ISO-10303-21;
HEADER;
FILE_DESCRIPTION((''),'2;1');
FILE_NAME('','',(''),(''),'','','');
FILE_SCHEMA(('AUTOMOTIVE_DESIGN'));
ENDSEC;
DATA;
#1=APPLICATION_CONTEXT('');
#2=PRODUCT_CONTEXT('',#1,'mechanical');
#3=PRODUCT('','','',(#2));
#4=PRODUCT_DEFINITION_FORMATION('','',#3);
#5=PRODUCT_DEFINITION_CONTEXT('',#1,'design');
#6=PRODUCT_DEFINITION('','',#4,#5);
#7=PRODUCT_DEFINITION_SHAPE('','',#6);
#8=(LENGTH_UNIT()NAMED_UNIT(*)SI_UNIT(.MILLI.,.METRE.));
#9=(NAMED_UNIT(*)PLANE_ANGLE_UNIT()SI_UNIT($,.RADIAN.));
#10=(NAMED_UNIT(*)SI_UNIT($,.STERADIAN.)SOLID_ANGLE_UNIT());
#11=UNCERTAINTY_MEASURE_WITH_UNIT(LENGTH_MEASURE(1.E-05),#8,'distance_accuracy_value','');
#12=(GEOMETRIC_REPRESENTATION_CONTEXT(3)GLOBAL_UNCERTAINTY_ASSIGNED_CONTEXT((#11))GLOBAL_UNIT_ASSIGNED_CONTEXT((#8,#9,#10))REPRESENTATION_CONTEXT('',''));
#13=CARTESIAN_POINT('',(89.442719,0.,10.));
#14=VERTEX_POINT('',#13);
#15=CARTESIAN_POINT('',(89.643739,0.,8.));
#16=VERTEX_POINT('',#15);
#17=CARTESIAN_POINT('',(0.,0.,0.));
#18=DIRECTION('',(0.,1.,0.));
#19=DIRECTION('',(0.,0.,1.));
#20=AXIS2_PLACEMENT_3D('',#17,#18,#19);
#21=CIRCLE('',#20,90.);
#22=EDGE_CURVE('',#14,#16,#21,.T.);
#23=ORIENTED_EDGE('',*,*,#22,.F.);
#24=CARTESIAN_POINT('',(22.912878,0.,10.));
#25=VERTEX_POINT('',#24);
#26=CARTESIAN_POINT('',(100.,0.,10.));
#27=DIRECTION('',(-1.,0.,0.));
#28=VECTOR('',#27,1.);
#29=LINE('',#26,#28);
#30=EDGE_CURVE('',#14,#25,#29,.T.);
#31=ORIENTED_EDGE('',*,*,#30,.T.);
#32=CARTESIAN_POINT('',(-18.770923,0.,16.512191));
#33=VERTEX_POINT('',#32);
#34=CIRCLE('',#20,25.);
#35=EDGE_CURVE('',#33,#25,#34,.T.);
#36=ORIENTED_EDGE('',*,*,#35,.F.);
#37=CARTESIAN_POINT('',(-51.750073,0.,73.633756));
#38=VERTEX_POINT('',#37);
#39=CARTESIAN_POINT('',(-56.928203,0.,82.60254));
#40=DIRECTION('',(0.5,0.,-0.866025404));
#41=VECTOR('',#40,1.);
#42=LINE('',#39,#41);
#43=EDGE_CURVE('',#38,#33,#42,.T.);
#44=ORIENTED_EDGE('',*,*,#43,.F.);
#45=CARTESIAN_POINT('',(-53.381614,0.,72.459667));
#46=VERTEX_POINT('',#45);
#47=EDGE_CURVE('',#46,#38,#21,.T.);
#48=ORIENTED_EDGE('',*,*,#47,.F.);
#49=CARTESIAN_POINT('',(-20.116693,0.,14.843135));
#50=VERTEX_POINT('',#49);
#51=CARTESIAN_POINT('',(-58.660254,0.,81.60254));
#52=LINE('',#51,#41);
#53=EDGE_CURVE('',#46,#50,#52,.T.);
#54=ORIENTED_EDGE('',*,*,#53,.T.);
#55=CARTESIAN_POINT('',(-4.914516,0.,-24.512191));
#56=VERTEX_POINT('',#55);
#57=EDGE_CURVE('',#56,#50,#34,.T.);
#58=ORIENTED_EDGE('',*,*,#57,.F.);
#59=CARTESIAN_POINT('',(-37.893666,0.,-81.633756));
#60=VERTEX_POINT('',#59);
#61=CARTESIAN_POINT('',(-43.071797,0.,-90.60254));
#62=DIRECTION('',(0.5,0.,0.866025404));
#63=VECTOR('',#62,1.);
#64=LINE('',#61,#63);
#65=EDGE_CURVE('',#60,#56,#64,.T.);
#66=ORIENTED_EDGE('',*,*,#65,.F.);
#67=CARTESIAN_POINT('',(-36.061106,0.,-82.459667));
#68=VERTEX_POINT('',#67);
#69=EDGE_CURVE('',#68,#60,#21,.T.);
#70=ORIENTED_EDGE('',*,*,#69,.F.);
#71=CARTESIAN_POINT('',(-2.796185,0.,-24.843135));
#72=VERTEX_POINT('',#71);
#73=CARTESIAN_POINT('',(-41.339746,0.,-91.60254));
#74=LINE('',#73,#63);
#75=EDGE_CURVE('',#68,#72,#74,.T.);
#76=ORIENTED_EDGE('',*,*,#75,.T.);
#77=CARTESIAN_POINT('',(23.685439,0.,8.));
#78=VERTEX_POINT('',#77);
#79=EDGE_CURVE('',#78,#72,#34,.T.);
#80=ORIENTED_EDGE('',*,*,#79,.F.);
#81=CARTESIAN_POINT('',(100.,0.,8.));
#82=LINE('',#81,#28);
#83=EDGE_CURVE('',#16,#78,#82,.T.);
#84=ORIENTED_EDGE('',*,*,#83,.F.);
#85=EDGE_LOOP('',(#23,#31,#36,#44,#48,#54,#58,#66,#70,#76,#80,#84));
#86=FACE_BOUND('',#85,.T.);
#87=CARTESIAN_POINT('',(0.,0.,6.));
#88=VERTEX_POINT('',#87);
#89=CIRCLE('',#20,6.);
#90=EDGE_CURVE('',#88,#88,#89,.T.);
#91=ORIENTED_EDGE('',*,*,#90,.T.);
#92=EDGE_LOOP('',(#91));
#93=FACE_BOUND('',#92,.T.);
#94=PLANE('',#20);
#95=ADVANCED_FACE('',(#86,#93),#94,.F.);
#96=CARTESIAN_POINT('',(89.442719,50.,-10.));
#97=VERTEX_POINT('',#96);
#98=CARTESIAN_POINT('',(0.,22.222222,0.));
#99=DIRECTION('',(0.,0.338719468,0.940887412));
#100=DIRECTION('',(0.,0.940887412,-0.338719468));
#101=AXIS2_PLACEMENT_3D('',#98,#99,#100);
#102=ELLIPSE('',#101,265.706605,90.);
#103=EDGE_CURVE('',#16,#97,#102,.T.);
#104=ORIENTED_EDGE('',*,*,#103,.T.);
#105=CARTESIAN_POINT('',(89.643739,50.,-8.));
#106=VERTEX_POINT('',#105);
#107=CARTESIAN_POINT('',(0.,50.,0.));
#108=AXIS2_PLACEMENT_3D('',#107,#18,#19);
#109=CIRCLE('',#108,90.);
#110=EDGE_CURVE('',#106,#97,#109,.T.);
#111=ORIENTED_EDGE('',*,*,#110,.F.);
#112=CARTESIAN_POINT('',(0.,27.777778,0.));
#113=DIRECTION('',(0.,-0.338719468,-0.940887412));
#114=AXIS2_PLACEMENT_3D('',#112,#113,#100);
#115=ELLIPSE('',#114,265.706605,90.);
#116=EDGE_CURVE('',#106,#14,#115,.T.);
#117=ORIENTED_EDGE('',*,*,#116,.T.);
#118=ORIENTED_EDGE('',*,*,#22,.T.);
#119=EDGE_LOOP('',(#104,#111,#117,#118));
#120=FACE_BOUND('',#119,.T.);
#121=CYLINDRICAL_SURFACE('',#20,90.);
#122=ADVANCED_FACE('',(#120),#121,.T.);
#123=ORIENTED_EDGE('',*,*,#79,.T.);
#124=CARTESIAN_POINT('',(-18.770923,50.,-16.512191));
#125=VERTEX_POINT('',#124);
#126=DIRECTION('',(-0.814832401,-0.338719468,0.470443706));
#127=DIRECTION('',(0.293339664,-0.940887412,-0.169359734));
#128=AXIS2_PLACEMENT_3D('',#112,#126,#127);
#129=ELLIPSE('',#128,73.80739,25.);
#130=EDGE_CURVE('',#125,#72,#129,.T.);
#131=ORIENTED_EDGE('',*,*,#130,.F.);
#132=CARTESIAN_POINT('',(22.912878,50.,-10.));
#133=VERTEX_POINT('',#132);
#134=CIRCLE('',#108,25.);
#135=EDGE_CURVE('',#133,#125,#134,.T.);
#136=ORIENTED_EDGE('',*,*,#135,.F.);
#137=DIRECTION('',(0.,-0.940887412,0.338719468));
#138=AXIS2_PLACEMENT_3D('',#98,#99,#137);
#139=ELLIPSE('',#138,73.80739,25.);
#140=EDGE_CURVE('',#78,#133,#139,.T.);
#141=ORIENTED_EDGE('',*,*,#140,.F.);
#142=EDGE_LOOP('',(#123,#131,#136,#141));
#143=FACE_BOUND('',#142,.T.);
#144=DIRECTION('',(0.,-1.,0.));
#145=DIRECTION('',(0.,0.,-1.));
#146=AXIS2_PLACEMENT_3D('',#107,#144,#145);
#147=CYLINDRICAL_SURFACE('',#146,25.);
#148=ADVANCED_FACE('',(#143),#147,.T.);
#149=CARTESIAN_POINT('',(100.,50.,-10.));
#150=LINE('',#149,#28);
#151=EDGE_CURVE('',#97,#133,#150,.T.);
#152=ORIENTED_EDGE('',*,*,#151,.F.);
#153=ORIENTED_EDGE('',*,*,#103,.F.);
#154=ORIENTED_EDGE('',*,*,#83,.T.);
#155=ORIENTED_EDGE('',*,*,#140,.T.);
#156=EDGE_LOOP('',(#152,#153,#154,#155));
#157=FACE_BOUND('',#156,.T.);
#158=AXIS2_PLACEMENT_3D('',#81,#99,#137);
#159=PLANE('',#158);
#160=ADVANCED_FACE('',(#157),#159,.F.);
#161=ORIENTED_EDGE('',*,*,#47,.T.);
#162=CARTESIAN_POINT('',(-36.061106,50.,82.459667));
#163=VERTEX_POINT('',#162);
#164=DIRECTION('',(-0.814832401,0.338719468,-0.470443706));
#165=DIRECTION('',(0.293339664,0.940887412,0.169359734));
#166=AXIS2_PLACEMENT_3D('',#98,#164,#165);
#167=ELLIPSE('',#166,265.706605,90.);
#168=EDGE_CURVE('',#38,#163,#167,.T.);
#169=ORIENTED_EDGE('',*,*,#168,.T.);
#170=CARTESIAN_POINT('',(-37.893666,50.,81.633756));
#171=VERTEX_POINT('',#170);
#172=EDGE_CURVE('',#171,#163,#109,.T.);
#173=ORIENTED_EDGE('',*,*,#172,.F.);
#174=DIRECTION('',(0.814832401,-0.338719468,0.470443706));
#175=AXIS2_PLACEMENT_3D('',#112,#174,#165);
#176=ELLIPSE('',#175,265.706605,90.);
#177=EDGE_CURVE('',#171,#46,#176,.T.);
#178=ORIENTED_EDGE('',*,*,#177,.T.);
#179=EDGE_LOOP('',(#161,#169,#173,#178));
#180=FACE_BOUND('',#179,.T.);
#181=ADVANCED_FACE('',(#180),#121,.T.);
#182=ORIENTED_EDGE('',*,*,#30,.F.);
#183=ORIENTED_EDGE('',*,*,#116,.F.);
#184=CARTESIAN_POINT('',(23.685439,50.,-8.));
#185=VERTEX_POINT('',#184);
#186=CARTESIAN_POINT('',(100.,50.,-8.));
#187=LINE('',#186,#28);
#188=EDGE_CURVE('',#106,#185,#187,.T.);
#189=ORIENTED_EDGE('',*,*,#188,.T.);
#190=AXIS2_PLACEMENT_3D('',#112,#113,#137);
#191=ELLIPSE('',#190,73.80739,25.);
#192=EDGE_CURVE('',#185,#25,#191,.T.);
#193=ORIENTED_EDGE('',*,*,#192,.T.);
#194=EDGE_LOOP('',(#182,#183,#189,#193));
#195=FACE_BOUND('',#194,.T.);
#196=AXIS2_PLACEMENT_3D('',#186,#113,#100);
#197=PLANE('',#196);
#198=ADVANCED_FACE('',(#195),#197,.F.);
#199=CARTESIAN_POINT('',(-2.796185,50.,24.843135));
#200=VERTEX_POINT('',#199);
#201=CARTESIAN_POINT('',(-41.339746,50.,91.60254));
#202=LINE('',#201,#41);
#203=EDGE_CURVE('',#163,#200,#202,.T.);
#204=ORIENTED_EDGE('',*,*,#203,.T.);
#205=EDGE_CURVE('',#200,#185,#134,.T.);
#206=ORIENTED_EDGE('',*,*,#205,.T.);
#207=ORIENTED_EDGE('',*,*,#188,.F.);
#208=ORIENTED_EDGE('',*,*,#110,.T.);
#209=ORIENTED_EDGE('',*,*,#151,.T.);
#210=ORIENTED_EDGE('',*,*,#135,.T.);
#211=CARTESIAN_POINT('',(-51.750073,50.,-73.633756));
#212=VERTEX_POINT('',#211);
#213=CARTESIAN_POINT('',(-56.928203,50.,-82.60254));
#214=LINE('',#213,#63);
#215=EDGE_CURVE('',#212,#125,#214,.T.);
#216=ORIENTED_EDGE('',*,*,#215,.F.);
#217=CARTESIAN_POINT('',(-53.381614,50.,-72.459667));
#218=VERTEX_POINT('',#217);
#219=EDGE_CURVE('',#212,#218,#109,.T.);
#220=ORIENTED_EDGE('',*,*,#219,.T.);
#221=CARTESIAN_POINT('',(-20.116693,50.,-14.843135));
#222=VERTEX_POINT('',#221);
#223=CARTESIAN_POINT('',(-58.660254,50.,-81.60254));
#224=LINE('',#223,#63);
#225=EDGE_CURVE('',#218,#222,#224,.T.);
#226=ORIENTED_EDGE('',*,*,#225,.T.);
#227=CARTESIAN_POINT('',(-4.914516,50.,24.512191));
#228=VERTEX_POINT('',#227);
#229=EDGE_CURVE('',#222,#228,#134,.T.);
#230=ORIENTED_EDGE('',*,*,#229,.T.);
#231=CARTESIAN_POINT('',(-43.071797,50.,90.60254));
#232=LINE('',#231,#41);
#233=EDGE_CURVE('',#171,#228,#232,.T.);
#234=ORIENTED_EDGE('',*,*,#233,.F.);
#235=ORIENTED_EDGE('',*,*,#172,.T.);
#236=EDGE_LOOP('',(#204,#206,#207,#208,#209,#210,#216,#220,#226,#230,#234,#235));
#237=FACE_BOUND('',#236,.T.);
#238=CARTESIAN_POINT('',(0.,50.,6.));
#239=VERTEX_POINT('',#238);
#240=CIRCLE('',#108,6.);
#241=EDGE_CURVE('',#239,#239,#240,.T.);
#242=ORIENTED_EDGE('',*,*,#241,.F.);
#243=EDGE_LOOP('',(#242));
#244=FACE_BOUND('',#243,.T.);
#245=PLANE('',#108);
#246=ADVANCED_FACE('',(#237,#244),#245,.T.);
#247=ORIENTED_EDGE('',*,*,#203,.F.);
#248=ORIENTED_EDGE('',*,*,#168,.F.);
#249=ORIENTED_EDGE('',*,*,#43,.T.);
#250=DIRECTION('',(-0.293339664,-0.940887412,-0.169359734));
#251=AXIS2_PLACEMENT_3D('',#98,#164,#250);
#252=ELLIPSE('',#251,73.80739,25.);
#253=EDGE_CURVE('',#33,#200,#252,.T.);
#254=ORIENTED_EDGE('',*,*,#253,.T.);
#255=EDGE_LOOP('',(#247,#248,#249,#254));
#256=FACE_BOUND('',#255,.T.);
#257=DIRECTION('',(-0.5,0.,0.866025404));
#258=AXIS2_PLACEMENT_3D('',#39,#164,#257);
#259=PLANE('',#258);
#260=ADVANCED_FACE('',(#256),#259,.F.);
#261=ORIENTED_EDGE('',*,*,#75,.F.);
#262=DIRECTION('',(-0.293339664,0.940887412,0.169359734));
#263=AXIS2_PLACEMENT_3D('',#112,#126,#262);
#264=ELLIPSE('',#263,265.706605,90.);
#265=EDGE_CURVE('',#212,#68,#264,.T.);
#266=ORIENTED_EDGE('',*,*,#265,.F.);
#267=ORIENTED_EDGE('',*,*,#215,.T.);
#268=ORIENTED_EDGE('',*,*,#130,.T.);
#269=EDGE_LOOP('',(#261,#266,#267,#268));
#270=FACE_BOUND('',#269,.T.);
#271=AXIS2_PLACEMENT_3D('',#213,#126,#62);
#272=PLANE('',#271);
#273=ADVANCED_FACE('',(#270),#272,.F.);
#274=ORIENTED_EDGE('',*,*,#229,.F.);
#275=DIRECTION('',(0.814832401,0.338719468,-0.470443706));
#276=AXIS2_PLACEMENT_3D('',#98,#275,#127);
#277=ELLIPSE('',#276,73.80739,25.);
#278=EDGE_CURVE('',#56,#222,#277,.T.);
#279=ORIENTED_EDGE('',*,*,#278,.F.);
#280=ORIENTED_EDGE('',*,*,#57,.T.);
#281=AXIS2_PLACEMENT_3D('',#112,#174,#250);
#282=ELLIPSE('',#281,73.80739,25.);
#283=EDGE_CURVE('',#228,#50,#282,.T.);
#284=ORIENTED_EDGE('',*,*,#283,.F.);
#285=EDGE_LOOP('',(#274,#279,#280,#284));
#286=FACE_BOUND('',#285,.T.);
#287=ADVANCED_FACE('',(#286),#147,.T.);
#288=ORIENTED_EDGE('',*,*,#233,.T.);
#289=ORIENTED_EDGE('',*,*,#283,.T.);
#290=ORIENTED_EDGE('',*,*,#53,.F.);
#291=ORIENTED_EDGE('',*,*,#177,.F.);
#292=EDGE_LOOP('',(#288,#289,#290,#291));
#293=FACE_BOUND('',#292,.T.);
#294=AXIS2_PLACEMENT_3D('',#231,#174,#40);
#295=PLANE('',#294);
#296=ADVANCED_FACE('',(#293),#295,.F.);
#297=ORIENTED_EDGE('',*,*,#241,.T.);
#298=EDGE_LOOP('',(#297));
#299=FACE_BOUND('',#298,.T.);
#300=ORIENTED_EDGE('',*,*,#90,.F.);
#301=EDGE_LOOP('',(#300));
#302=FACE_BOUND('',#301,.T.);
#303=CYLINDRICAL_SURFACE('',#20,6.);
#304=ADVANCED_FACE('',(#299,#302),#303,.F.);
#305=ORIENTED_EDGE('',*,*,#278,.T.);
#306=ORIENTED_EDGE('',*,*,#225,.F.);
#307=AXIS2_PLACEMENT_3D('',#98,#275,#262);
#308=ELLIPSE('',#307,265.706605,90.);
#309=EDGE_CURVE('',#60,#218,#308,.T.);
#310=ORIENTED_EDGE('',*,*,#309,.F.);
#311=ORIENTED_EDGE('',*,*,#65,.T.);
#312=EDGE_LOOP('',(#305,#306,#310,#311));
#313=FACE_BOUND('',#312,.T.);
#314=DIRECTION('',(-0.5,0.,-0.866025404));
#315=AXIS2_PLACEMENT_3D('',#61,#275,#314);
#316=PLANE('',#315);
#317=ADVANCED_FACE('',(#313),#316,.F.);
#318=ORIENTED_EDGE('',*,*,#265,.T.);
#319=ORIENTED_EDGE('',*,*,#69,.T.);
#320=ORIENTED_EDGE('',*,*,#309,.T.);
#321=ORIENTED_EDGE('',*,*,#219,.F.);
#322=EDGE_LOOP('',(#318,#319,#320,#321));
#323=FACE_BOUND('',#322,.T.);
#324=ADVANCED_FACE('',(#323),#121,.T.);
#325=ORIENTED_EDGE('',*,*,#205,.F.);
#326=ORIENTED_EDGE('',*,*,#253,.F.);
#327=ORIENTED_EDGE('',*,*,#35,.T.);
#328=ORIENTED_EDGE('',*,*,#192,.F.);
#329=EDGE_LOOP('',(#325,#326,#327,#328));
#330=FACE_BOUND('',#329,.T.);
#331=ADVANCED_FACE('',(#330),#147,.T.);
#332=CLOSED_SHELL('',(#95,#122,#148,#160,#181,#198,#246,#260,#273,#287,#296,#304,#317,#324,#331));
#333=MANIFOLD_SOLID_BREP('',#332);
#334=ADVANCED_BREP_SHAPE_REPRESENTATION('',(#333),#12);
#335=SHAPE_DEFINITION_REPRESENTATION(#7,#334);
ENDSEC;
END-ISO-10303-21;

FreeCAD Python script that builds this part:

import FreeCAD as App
import Part
import Sketcher
from FreeCAD import Vector
Q = App.Units.Quantity

doc = App.newDocument("Part")
body = doc.addObject("PartDesign::Body", "Body")

sketch1 = body.newObject("Sketcher::SketchObject", "Sketch")
sketch1.AttachmentSupport = (doc.getObject("XZ_Plane"), [""])
sketch1.MapMode = "FlatFace"
sketch1.addGeometry(Part.Circle(Vector(0, 0, 0), Vector(0, 0, 1), 25), False)
sketch1.addConstraint(Sketcher.Constraint("Coincident", 0, 3, -1, 1))
sketch1.addConstraint(Sketcher.Constraint("Diameter", 0, Q("50 mm")))
pad1 = body.newObject("PartDesign::Pad", "Pad")
pad1.Profile = sketch1
pad1.Length = 50
pad1.Reversed = True

sketch2 = body.newObject("Sketcher::SketchObject", "Sketch001")
sketch2.AttachmentSupport = (doc.getObject("YZ_Plane"), [""])
sketch2.MapMode = "FlatFace"
sketch2.addGeometry(Part.LineSegment(Vector(50, -10, 0), Vector(50, -8, 0)), False)
sketch2.addGeometry(Part.LineSegment(Vector(50, -8, 0), Vector(0, 10, 0)), False)
sketch2.addGeometry(Part.LineSegment(Vector(0, 10, 0), Vector(0, 8, 0)), False)
sketch2.addGeometry(Part.LineSegment(Vector(0, 8, 0), Vector(50, -10, 0)), False)
sketch2.addConstraint(Sketcher.Constraint("Coincident", 0, 2, 1, 1))
sketch2.addConstraint(Sketcher.Constraint("Coincident", 1, 2, 2, 1))
sketch2.addConstraint(Sketcher.Constraint("Coincident", 2, 2, 3, 1))
sketch2.addConstraint(Sketcher.Constraint("Coincident", 3, 2, 0, 1))
sketch2.addConstraint(Sketcher.Constraint("Vertical", 0))
sketch2.addConstraint(Sketcher.Constraint("Vertical", 2))
sketch2.addConstraint(Sketcher.Constraint("PointOnObject", 1, 2, -2))
sketch2.addConstraint(Sketcher.Constraint("Parallel", 1, 3))
sketch2.addConstraint(Sketcher.Constraint("DistanceY", 0, 1, 0, 2, Q("2 mm")))
sketch2.addConstraint(Sketcher.Constraint("DistanceX", -1, 1, 0, 2, Q("50 mm")))
sketch2.addConstraint(Sketcher.Constraint("DistanceY", 0, 2, -1, 1, Q("8 mm")))
sketch2.addConstraint(Sketcher.Constraint("DistanceY", -1, 1, 1, 2, Q("10 mm")))
pad2 = body.newObject("PartDesign::Pad", "Pad001")
pad2.Profile = sketch2
pad2.Length = 100
doc.recompute()

polarpattern = body.newObject("PartDesign::PolarPattern", "PolarPattern")
polarpattern.Originals = [pad2]
polarpattern.Axis = (doc.getObject("Y_Axis"), [""])
polarpattern.Angle = 360
polarpattern.Occurrences = 3
body.Tip = polarpattern

sketch3 = body.newObject("Sketcher::SketchObject", "Sketch002")
sketch3.AttachmentSupport = (doc.getObject("XZ_Plane"), [""])
sketch3.MapMode = "FlatFace"
sketch3.AttachmentOffset = App.Placement(Vector(0, 0, -50), App.Rotation())
sketch3.addGeometry(Part.Circle(Vector(0, 0, 0), Vector(0, 0, 1), 150), False)
sketch3.addGeometry(Part.Circle(Vector(0, 0, 0), Vector(0, 0, 1), 90), False)
sketch3.addConstraint(Sketcher.Constraint("Coincident", 0, 3, -1, 1))
sketch3.addConstraint(Sketcher.Constraint("Coincident", 1, 3, -1, 1))
sketch3.addConstraint(Sketcher.Constraint("Diameter", 0, Q("300 mm")))
sketch3.addConstraint(Sketcher.Constraint("Diameter", 1, Q("180 mm")))
pocket1 = body.newObject("PartDesign::Pocket", "Pocket")
pocket1.Profile = sketch3
pocket1.Type = "ThroughAll"
pocket1.Reversed = True

sketch4 = body.newObject("Sketcher::SketchObject", "Sketch003")
sketch4.AttachmentSupport = (doc.getObject("XZ_Plane"), [""])
sketch4.MapMode = "FlatFace"
sketch4.AttachmentOffset = App.Placement(Vector(0, 0, -50), App.Rotation())
sketch4.addGeometry(Part.Circle(Vector(0, 0, 0), Vector(0, 0, 1), 6), False)
sketch4.addConstraint(Sketcher.Constraint("Coincident", 0, 3, -1, 1))
sketch4.addConstraint(Sketcher.Constraint("Diameter", 0, Q("12 mm")))
pocket2 = body.newObject("PartDesign::Pocket", "Pocket001")
pocket2.Profile = sketch4
pocket2.Type = "ThroughAll"
pocket2.Reversed = True

doc.recompute()
